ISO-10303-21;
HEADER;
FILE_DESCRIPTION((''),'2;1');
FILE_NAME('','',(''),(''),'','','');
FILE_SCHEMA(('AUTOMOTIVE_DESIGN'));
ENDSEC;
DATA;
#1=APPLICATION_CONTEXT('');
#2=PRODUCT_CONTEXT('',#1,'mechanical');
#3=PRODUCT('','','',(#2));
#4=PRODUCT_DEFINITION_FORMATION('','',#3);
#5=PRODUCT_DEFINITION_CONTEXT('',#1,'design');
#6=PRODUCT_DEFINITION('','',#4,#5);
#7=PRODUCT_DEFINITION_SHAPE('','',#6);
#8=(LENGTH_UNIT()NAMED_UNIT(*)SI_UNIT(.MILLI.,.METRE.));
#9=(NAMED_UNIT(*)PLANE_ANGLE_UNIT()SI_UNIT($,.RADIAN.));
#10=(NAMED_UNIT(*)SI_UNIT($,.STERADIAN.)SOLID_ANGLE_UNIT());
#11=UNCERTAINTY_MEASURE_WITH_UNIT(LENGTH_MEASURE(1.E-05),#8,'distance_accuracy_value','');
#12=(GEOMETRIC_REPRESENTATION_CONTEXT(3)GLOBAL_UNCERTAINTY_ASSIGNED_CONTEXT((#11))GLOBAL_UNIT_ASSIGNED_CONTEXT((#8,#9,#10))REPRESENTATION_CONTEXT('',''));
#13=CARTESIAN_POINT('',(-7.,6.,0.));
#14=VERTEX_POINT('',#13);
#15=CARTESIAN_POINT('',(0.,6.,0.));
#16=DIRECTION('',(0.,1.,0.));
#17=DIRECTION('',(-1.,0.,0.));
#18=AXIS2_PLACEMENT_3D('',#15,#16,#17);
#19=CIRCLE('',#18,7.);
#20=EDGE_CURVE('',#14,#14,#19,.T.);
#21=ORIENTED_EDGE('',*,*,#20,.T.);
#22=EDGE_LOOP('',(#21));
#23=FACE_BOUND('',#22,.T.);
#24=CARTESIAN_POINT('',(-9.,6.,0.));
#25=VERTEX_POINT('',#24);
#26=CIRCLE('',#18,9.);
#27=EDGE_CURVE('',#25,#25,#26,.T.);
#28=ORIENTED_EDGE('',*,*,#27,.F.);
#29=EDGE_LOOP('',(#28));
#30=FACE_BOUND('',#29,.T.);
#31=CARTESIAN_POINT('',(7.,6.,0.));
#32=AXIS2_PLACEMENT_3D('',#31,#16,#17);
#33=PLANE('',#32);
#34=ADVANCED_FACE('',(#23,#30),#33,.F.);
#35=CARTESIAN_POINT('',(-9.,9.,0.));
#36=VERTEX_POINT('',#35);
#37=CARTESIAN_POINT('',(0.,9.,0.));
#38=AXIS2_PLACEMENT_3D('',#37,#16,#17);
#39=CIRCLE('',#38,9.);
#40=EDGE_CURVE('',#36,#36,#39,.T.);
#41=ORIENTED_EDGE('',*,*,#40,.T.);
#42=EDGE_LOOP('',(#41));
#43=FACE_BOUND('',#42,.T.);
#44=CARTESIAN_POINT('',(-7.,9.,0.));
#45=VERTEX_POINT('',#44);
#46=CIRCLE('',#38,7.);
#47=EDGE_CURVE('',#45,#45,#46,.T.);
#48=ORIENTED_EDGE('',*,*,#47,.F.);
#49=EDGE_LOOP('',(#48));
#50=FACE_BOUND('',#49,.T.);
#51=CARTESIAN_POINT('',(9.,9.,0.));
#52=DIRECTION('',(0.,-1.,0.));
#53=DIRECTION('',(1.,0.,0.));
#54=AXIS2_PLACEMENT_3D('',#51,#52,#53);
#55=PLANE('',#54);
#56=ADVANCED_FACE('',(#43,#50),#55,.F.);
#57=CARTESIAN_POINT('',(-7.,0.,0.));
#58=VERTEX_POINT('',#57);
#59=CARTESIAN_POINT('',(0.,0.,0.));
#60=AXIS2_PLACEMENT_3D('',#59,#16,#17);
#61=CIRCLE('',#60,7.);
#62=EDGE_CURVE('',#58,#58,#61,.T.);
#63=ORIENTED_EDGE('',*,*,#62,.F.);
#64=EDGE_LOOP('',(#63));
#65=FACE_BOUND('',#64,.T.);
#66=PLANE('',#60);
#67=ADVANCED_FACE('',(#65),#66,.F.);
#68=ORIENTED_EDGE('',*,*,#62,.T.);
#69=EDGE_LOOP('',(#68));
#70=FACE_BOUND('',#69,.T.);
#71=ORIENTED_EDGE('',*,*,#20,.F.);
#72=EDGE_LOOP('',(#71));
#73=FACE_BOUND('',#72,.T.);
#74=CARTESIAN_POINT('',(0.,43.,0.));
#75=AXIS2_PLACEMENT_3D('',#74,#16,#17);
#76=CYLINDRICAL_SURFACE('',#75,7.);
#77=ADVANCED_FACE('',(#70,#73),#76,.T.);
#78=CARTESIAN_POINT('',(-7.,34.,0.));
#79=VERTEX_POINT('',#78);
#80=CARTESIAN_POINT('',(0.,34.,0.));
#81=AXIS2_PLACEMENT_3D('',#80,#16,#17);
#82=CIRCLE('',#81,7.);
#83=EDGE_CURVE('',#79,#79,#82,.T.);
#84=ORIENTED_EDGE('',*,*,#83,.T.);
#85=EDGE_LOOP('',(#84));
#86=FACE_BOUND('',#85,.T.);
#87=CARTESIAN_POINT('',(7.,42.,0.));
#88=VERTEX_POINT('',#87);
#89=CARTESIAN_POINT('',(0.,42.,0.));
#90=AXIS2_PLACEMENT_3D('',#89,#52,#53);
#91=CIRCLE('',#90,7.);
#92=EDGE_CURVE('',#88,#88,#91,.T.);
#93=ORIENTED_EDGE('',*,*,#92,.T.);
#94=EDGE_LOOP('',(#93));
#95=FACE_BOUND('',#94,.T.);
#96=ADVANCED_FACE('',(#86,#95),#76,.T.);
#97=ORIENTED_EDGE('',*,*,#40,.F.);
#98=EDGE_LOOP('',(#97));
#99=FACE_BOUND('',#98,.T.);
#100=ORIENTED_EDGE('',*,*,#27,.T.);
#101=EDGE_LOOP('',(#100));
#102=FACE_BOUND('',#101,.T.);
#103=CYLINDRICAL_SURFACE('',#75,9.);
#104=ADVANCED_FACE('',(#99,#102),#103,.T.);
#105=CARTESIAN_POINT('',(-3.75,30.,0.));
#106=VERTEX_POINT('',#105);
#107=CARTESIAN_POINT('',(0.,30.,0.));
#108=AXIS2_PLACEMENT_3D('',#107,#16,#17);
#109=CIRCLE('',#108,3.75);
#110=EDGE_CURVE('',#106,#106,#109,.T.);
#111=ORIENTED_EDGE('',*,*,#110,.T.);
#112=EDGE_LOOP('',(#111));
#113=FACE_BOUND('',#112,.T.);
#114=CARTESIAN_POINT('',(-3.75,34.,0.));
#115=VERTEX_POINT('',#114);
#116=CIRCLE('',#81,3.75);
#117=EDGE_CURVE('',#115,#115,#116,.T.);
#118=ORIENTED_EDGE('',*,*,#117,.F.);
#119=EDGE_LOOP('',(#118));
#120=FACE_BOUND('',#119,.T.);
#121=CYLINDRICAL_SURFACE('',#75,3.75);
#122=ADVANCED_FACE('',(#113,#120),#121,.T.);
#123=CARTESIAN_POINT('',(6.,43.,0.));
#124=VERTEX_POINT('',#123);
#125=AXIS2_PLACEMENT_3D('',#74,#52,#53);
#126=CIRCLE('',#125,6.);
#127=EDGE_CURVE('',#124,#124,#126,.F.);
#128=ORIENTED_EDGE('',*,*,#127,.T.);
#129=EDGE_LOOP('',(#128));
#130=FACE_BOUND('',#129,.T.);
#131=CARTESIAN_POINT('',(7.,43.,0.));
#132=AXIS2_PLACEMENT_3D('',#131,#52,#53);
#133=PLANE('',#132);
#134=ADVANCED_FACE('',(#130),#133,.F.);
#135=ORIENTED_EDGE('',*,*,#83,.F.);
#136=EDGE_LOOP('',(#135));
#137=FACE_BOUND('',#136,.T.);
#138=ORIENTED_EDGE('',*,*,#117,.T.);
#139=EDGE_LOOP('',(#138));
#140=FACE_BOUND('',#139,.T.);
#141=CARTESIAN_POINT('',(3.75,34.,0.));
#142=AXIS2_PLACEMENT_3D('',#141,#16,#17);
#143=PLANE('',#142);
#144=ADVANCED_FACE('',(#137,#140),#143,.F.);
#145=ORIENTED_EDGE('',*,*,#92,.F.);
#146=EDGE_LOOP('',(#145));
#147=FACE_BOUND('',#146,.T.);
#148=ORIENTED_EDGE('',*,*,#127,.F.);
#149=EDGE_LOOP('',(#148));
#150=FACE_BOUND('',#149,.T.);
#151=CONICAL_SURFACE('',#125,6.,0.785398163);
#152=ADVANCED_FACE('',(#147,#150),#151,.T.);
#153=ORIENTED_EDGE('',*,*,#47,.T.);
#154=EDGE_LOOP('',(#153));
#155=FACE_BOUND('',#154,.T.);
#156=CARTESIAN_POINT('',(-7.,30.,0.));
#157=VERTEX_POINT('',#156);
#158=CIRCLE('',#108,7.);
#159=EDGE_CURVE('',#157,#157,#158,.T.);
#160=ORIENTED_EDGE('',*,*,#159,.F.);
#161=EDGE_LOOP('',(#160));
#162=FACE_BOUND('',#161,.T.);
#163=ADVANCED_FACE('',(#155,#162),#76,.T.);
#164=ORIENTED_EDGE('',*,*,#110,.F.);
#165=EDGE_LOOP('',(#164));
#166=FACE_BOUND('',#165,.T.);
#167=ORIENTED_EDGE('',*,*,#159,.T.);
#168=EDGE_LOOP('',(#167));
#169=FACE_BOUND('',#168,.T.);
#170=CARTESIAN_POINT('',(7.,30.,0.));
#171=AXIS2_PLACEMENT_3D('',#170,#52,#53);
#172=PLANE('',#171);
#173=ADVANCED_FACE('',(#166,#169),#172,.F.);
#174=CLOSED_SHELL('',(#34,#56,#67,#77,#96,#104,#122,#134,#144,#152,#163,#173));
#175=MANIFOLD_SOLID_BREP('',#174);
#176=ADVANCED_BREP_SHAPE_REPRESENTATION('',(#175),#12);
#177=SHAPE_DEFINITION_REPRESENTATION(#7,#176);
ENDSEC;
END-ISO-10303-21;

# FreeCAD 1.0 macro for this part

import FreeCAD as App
import Part
import Sketcher


def edges_at(feature, points):
    """Names of the edges that pass closest to the given points."""
    edges = feature.Shape.Edges
    near = lambda p: min(range(len(edges)), key=lambda i: edges[i].distToShape(Part.Vertex(*p))[0])
    return sorted({f"Edge{near(p) + 1}" for p in points})


def add_polygon(sketch, points):
    """Adds a closed chain of lines whose ends are joined by coincident constraints."""
    first, n = sketch.GeometryCount, len(points)
    for a, b in zip(points, points[1:] + points[:1]):
        sketch.addGeometry(Part.LineSegment(App.Vector(*a, 0), App.Vector(*b, 0)), False)
    for i in range(n):
        sketch.addConstraint(Sketcher.Constraint("Coincident", first + i, 2, first + (i + 1) % n, 1))

doc = App.newDocument("Part")
params = doc.addObject("Spreadsheet::Sheet", "Params")
for row, (alias, value) in enumerate([
    ("sketch1_width", "7 mm"),
    ("sketch1_width2", "2 mm"),
    ("sketch1_height", "6 mm"),
    ("sketch1_height2", "3 mm"),
    ("sketch1_height3", "21 mm"),
    ("revolution_angle", "360 deg"),
    ("chamfer_size", "1 mm"),
], start=1):
    params.set(f"A{row}", alias)
    params.set(f"B{row}", "=" + value)
    params.setAlias(f"B{row}", alias)

body = doc.addObject("PartDesign::Body", "Body")

# Sketch on XY plane
sketch1 = body.newObject("Sketcher::SketchObject", "Sketch")
sketch1.AttachmentSupport = (doc.getObject("XY_Plane"), [""])
sketch1.MapMode = "FlatFace"
add_polygon(sketch1, [(0, 0), (7, 0), (7, 6), (9, 6), (9, 9), (7, 9), (7, 30), (3.8, 30), (3.8, 34), (7, 34), (7, 43), (0, 43)])  # lines 0-11
sketch1.addConstraint([
    Sketcher.Constraint("Horizontal", 0),
    Sketcher.Constraint("Vertical", 1),
    Sketcher.Constraint("Horizontal", 2),
    Sketcher.Constraint("Vertical", 3),
    Sketcher.Constraint("Horizontal", 4),
    Sketcher.Constraint("Vertical", 5),
    Sketcher.Constraint("Horizontal", 6),
    Sketcher.Constraint("Vertical", 7),
    Sketcher.Constraint("Horizontal", 8),
    Sketcher.Constraint("Vertical", 9),
    Sketcher.Constraint("Horizontal", 10),
    Sketcher.Constraint("Vertical", 11),
    Sketcher.Constraint("Coincident", 11, 2, -1, 1),
    Sketcher.Constraint("Vertical", 1, 2, 4, 2),
    Sketcher.Constraint("Vertical", 5, 2, 8, 2),
    Sketcher.Constraint("DistanceX", 0, 1, 0, 2, 7.0),
    Sketcher.Constraint("DistanceX", 2, 1, 2, 2, 2.0),
    Sketcher.Constraint("DistanceY", 1, 1, 1, 2, 6.0),
    Sketcher.Constraint("DistanceY", 3, 1, 3, 2, 3.0),
    Sketcher.Constraint("DistanceY", 5, 1, 5, 2, 21.0),
    Sketcher.Constraint("DistanceY", 7, 1, 7, 2, 4.0),
    Sketcher.Constraint("DistanceY", 9, 1, 9, 2, 9.0),
    Sketcher.Constraint("DistanceX", 6, 2, 6, 1, 3.25),
])
sketch1.setExpression("Constraints[27]", "Params.sketch1_width")
sketch1.setExpression("Constraints[28]", "Params.sketch1_width2")
sketch1.setExpression("Constraints[29]", "Params.sketch1_height")
sketch1.setExpression("Constraints[30]", "Params.sketch1_height2")
sketch1.setExpression("Constraints[31]", "Params.sketch1_height3")
revolution = body.newObject("PartDesign::Revolution", "Revolution")
revolution.Profile = sketch1
revolution.ReferenceAxis = (sketch1, ["V_Axis"])
revolution.setExpression("Angle", "Params.revolution_angle")
doc.recompute()

chamfer = body.newObject("PartDesign::Chamfer", "Chamfer")
chamfer.Base = (revolution, edges_at(revolution, [(-7, 43, 0)]))
chamfer.setExpression("Size", "Params.chamfer_size")

doc.recompute()
